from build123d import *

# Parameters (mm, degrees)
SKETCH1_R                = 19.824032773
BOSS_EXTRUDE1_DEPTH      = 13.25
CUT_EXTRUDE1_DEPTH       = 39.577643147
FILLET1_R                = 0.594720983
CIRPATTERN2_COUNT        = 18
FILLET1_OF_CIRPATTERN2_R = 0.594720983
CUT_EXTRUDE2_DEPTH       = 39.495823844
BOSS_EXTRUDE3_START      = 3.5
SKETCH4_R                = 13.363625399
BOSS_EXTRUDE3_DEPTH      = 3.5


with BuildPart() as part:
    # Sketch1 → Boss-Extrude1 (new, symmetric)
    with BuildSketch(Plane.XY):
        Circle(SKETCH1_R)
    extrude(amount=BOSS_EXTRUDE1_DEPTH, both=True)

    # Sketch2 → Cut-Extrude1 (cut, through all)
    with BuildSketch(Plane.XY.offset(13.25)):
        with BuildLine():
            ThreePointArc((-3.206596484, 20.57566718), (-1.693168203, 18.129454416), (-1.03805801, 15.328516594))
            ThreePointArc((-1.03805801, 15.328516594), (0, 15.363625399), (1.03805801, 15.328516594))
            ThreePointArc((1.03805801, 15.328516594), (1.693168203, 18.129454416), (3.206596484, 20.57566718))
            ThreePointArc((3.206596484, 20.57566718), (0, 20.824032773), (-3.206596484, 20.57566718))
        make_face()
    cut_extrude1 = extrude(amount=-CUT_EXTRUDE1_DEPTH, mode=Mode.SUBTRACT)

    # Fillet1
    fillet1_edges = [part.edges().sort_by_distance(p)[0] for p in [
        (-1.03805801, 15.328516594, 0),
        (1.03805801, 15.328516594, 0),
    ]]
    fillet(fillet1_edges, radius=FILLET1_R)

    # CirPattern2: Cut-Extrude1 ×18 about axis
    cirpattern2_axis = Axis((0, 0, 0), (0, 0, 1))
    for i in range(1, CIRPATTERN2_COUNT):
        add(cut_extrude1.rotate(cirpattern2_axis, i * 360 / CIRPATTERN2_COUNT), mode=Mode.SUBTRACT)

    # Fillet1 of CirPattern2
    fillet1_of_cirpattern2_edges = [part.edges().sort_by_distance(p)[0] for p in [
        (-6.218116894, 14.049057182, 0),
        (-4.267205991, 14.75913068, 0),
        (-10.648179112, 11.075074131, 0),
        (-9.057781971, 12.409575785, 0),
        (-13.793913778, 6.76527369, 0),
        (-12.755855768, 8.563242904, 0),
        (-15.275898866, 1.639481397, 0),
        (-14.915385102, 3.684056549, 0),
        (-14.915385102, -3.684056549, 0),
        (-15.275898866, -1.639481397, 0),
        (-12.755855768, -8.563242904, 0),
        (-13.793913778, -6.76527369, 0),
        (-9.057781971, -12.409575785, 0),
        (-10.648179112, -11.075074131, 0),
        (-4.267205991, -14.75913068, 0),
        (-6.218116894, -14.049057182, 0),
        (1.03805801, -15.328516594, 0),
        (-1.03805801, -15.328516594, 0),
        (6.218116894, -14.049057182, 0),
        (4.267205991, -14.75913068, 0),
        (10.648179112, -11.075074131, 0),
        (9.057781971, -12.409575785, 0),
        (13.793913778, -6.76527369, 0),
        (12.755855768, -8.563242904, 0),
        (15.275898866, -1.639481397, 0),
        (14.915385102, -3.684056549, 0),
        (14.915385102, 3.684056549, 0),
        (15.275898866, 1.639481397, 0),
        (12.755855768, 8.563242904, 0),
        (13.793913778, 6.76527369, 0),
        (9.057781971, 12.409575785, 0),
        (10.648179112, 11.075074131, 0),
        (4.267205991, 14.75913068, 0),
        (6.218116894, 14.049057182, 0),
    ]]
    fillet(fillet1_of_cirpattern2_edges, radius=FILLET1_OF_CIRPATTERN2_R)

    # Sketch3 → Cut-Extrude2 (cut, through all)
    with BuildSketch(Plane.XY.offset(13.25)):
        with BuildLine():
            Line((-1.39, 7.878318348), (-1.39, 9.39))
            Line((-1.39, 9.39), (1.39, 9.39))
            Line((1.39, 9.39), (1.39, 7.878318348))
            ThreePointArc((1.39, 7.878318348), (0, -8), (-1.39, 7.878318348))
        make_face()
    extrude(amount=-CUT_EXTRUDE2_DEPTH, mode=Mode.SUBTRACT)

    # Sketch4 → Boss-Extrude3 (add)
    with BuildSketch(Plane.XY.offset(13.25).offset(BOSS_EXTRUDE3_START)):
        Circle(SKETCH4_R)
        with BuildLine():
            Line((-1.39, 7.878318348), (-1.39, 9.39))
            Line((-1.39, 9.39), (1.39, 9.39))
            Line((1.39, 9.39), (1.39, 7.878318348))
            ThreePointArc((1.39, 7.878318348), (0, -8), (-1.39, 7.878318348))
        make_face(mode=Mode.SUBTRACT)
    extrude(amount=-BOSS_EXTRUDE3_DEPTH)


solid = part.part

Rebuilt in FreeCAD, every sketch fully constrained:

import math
import FreeCAD as App
import Part
import Sketcher
Q = App.Units.Quantity


def edges_at(feature, points):
    """Names of the edges that pass closest to the given points."""
    edges = feature.Shape.Edges
    near = lambda p: min(range(len(edges)), key=lambda i: edges[i].distToShape(Part.Vertex(*p))[0])
    return sorted({f"Edge{near(p) + 1}" for p in points})

doc = App.newDocument("Part")
body = doc.addObject("PartDesign::Body", "Body")

# Sketch on XY plane
sketch1 = body.newObject("Sketcher::SketchObject", "Sketch")
sketch1.AttachmentSupport = (doc.getObject("XY_Plane"), [""])
sketch1.MapMode = "FlatFace"
sketch1.addGeometry(Part.Circle(App.Vector(0, 0, 0), App.Vector(0, 0, 1), 20), False)
sketch1.addConstraint([
    Sketcher.Constraint("Coincident", 0, 3, -1, 1),
    Sketcher.Constraint("Diameter", 0, Q("39.648066 mm")),
])
pad1 = body.newObject("PartDesign::Pad", "Pad")
pad1.Profile = sketch1
pad1.Length = 26.5
pad1.Midplane = True

# Sketch on XY plane
sketch2 = body.newObject("Sketcher::SketchObject", "Sketch001")
sketch2.AttachmentSupport = (doc.getObject("XY_Plane"), [""])
sketch2.MapMode = "FlatFace"
sketch2.AttachmentOffset = App.Placement(App.Vector(0, 0, 13.25), App.Rotation())
sketch2.addGeometry([
    Part.ArcOfCircle(Part.Circle(App.Vector(-9.9, 14.7, 0), App.Vector(0, 0, 1), 8.9), math.radians(4), math.radians(41)),
    Part.ArcOfCircle(Part.Circle(App.Vector(0, 0, 0), App.Vector(0, 0, 1), 15.4), math.radians(86.13), math.radians(93.87)),
    Part.ArcOfCircle(Part.Circle(App.Vector(9.9, 14.7, 0), App.Vector(0, 0, 1), 8.9), math.radians(139), math.radians(176)),
    Part.ArcOfCircle(Part.Circle(App.Vector(0, 0, 0), App.Vector(0, 0, 1), 20.8), math.radians(81.14), math.radians(98.86)),
], False)
sketch2.addConstraint([
    Sketcher.Constraint("Coincident", 0, 1, 1, 2),
    Sketcher.Constraint("Coincident", 1, 1, 2, 2),
    Sketcher.Constraint("Coincident", 2, 1, 3, 1),
    Sketcher.Constraint("Coincident", 3, 2, 0, 2),
    Sketcher.Constraint("Coincident", 1, 3, -1, 1),
    Sketcher.Constraint("Coincident", 3, 3, -1, 1),
    Sketcher.Constraint("Equal", 0, 2),
    Sketcher.Constraint("Symmetric", 0, 3, 2, 3, -2),
    Sketcher.Constraint("Radius", 0, Q("8.909393 mm")),
    Sketcher.Constraint("Radius", 1, Q("15.363625 mm")),
    Sketcher.Constraint("Radius", 3, Q("20.824033 mm")),
    Sketcher.Constraint("DistanceX", 0, 3, -1, 1, Q("9.927091 mm")),
    Sketcher.Constraint("DistanceX", 0, 1, -1, 1, Q("1.038058 mm")),
])
pocket1 = body.newObject("PartDesign::Pocket", "Pocket")
pocket1.Profile = sketch2
pocket1.Type = "ThroughAll"
doc.recompute()

fillet = body.newObject("PartDesign::Fillet", "Fillet")
fillet.Base = (pocket1, edges_at(pocket1, [(-1.038, 15.329, 0), (1.038, 15.329, 0)]))
fillet.Radius = 0.594721
doc.recompute()

polarpattern = body.newObject("PartDesign::PolarPattern", "PolarPattern")
polarpattern.Originals = [pocket1]
polarpattern.Axis = (doc.getObject("Z_Axis"), [""])
polarpattern.Angle = 360
polarpattern.Occurrences = 18
body.Tip = polarpattern
doc.recompute()

fillet2 = body.newObject("PartDesign::Fillet", "Fillet001")
fillet2.Base = (polarpattern, edges_at(polarpattern, [
    (-6.218, 14.049, 0),
    (-4.267, 14.759, 0),
    (-10.648, 11.075, 0),
    (-9.058, 12.41, 0),
    (-13.794, 6.765, 0),
    (-12.756, 8.563, 0),
    (-15.276, 1.639, 0),
    (-14.915, 3.684, 0),
    (-14.915, -3.684, 0),
    (-15.276, -1.639, 0),
    (-12.756, -8.563, 0),
    (-13.794, -6.765, 0),
    (-9.058, -12.41, 0),
    (-10.648, -11.075, 0),
    (-4.267, -14.759, 0),
    (-6.218, -14.049, 0),
    (1.038, -15.329, 0),
    (-1.038, -15.329, 0),
    (6.218, -14.049, 0),
    (4.267, -14.759, 0),
    (10.648, -11.075, 0),
    (9.058, -12.41, 0),
    (13.794, -6.765, 0),
    (12.756, -8.563, 0),
    (15.276, -1.639, 0),
    (14.915, -3.684, 0),
    (14.915, 3.684, 0),
    (15.276, 1.639, 0),
    (12.756, 8.563, 0),
    (13.794, 6.765, 0),
    (9.058, 12.41, 0),
    (10.648, 11.075, 0),
    (4.267, 14.759, 0),
    (6.218, 14.049, 0),
]))
fillet2.Radius = 0.594721

# Sketch on XY plane
sketch3 = body.newObject("Sketcher::SketchObject", "Sketch002")
sketch3.AttachmentSupport = (doc.getObject("XY_Plane"), [""])
sketch3.MapMode = "FlatFace"
sketch3.AttachmentOffset = App.Placement(App.Vector(0, 0, 13.25), App.Rotation())
sketch3.addGeometry([
    Part.LineSegment(App.Vector(-1.4, 9.4, 0), App.Vector(-1.4, 7.9, 0)),
    Part.ArcOfCircle(Part.Circle(App.Vector(0, 0, 0), App.Vector(0, 0, 1), 8), math.radians(100), math.radians(440)),
    Part.LineSegment(App.Vector(1.4, 7.9, 0), App.Vector(1.4, 9.4, 0)),
    Part.LineSegment(App.Vector(1.4, 9.4, 0), App.Vector(-1.4, 9.4, 0)),
], False)
sketch3.addConstraint([
    Sketcher.Constraint("Coincident", 0, 2, 1, 1),
    Sketcher.Constraint("Coincident", 1, 2, 2, 1),
    Sketcher.Constraint("Coincident", 2, 2, 3, 1),
    Sketcher.Constraint("Coincident", 3, 2, 0, 1),
    Sketcher.Constraint("Vertical", 0),
    Sketcher.Constraint("Vertical", 2),
    Sketcher.Constraint("Horizontal", 3),
    Sketcher.Constraint("Coincident", 1, 3, -1, 1),
    Sketcher.Constraint("Horizontal", 0, 2, 1, 2),
    Sketcher.Constraint("Radius", 1, Q("8 mm")),
    Sketcher.Constraint("DistanceX", 3, 2, 3, 1, Q("2.78 mm")),
    Sketcher.Constraint("DistanceY", -1, 1, 2, 2, Q("9.39 mm")),
])
pocket2 = body.newObject("PartDesign::Pocket", "Pocket001")
pocket2.Profile = sketch3
pocket2.Type = "ThroughAll"

# Sketch on XY plane
sketch4 = body.newObject("Sketcher::SketchObject", "Sketch003")
sketch4.AttachmentSupport = (doc.getObject("XY_Plane"), [""])
sketch4.MapMode = "FlatFace"
sketch4.AttachmentOffset = App.Placement(App.Vector(0, 0, 16.75), App.Rotation())
sketch4.addGeometry([
    Part.Circle(App.Vector(0, 0, 0), App.Vector(0, 0, 1), 13.4),  # 0
    Part.ArcOfCircle(Part.Circle(App.Vector(0, 0, 0), App.Vector(0, 0, 1), 8), math.radians(100), math.radians(440)),  # 1
    Part.LineSegment(App.Vector(-1.4, 7.9, 0), App.Vector(-1.4, 9.4, 0)),  # 2
    Part.LineSegment(App.Vector(-1.4, 9.4, 0), App.Vector(1.4, 9.4, 0)),  # 3
    Part.LineSegment(App.Vector(1.4, 9.4, 0), App.Vector(1.4, 7.9, 0)),  # 4
], False)
sketch4.addConstraint([
    Sketcher.Constraint("Coincident", 1, 1, 2, 1),
    Sketcher.Constraint("Coincident", 2, 2, 3, 1),
    Sketcher.Constraint("Coincident", 3, 2, 4, 1),
    Sketcher.Constraint("Coincident", 4, 2, 1, 2),
    Sketcher.Constraint("Vertical", 2),
    Sketcher.Constraint("Horizontal", 3),
    Sketcher.Constraint("Vertical", 4),
    Sketcher.Constraint("Coincident", 0, 3, -1, 1),
    Sketcher.Constraint("Coincident", 1, 3, -1, 1),
    Sketcher.Constraint("Horizontal", 1, 1, 4, 2),
    Sketcher.Constraint("Radius", 1, Q("8 mm")),
    Sketcher.Constraint("DistanceX", 3, 1, 3, 2, Q("2.78 mm")),
    Sketcher.Constraint("Diameter", 0, Q("26.727251 mm")),
    Sketcher.Constraint("DistanceY", -1, 1, 2, 2, Q("9.39 mm")),
])
pad2 = body.newObject("PartDesign::Pad", "Pad001")
pad2.Profile = sketch4
pad2.Length = 3.5
pad2.Reversed = True

doc.recompute()
